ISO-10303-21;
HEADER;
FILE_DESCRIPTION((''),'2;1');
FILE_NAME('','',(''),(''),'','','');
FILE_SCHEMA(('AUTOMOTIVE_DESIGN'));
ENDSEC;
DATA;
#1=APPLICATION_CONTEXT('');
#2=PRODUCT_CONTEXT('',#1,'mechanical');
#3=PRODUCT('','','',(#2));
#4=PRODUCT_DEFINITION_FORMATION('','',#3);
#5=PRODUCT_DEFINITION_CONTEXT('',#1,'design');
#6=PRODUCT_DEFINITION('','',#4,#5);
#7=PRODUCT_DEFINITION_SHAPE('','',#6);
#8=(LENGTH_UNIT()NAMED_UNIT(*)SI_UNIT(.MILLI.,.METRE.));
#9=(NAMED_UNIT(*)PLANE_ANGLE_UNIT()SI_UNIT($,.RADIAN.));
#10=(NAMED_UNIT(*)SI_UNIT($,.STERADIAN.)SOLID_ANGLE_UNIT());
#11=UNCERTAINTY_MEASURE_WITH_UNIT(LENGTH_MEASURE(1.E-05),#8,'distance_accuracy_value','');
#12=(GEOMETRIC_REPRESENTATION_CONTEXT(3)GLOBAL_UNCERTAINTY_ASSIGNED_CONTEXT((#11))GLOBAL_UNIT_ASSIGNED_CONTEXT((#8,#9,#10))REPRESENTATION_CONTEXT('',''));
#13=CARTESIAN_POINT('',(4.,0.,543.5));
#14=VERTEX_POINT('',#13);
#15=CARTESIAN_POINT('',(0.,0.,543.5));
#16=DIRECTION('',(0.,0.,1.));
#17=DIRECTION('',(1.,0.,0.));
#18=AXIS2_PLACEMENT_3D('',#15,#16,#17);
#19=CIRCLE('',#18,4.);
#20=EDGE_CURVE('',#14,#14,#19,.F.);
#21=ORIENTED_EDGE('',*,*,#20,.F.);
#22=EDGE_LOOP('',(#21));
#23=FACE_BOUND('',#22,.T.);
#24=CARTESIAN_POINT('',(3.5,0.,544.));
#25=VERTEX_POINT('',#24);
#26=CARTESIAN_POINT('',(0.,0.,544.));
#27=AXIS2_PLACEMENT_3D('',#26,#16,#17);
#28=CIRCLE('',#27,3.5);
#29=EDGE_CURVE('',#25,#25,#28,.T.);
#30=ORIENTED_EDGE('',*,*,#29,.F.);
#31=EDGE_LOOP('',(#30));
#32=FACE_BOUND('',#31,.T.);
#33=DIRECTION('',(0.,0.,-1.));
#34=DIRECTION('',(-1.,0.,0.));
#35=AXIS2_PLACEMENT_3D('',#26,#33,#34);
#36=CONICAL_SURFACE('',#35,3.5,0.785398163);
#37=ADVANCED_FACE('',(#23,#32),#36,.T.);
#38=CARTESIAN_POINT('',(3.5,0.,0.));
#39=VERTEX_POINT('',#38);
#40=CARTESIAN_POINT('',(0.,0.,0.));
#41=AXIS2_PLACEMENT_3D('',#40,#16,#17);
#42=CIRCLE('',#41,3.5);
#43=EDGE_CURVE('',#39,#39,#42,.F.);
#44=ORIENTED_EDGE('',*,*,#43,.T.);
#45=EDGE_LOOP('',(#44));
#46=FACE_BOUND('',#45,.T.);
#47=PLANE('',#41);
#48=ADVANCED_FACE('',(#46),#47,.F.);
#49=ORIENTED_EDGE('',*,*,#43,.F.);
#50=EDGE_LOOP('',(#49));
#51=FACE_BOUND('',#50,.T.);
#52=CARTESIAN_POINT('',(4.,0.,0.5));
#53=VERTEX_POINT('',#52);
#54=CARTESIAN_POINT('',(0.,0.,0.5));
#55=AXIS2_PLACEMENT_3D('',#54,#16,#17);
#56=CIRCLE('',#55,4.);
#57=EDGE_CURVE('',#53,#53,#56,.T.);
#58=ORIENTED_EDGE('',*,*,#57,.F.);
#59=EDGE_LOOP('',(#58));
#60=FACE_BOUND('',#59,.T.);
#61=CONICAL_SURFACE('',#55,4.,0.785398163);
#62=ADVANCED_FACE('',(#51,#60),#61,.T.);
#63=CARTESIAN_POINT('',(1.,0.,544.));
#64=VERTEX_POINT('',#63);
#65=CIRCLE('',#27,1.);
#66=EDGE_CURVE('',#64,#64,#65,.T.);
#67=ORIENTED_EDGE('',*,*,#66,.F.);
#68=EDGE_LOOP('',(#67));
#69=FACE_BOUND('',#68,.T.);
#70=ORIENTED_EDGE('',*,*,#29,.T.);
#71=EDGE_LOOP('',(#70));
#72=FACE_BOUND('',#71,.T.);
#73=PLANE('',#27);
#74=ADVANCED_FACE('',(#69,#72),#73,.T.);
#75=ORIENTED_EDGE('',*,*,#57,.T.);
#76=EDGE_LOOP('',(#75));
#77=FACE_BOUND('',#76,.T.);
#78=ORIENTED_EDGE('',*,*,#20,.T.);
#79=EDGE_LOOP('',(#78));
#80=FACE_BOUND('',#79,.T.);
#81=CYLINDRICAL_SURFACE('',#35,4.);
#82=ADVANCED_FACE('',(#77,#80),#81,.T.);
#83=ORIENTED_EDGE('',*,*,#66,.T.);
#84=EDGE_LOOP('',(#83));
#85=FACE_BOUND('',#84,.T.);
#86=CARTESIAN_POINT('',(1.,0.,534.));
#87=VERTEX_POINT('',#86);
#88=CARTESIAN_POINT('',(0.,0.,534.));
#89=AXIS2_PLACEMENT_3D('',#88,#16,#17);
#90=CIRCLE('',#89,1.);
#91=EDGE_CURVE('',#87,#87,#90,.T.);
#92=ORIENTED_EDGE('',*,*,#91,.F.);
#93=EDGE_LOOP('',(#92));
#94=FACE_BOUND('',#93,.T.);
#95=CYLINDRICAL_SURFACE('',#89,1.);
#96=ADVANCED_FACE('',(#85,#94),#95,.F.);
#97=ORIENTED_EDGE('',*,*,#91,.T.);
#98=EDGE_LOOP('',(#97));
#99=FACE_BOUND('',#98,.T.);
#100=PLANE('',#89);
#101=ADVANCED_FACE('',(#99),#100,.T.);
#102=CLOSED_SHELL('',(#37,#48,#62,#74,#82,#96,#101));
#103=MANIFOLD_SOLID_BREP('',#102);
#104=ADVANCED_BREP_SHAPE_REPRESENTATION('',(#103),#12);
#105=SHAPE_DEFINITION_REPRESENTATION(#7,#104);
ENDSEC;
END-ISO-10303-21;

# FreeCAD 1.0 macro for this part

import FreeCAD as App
import Part
import Sketcher
from FreeCAD import Vector


def edges_at(feature, points):
    """Names of the edges that pass closest to the given points."""
    edges = feature.Shape.Edges
    near = lambda p: min(range(len(edges)), key=lambda i: edges[i].distToShape(Part.Vertex(*p))[0])
    return sorted({f"Edge{near(p) + 1}" for p in points})

doc = App.newDocument("Part")
params = doc.addObject("Spreadsheet::Sheet", "Params")
for row, (alias, value) in enumerate([
    ("sketch1_diameter", "8 mm"),
    ("pad1_length", "544 mm"),
    ("sketch2_diameter", "2 mm"),
    ("pocket1_length", "10 mm"),
    ("chamfer_size", "0.5 mm"),
], start=1):
    params.set(f"A{row}", alias)
    params.set(f"B{row}", "=" + value)
    params.setAlias(f"B{row}", alias)

body = doc.addObject("PartDesign::Body", "Body")

sketch1 = body.newObject("Sketcher::SketchObject", "Sketch")
sketch1.AttachmentSupport = (doc.getObject("XY_Plane"), [""])
sketch1.MapMode = "FlatFace"
sketch1.addGeometry(Part.Circle(Vector(0, 0, 0), Vector(0, 0, 1), 4), False)
sketch1.addConstraint([
    Sketcher.Constraint("Coincident", 0, 3, -1, 1),
    Sketcher.Constraint("Diameter", 0, 8.0),
])
sketch1.setExpression("Constraints[1]", "Params.sketch1_diameter")
pad1 = body.newObject("PartDesign::Pad", "Pad")
pad1.Profile = sketch1
pad1.setExpression("Length", "Params.pad1_length")

sketch2 = body.newObject("Sketcher::SketchObject", "Sketch001")
sketch2.AttachmentSupport = (doc.getObject("XY_Plane"), [""])
sketch2.MapMode = "FlatFace"
sketch2.AttachmentOffset = App.Placement(Vector(0, 0, 544), App.Rotation())
sketch2.addGeometry(Part.Circle(Vector(0, 0, 0), Vector(0, 0, 1), 1), False)
sketch2.addConstraint([
    Sketcher.Constraint("Coincident", 0, 3, -1, 1),
    Sketcher.Constraint("Diameter", 0, 2.0),
])
sketch2.setExpression("Constraints[1]", "Params.sketch2_diameter")
pocket1 = body.newObject("PartDesign::Pocket", "Pocket")
pocket1.Profile = sketch2
pocket1.setExpression("Length", "Params.pocket1_length")
doc.recompute()

chamfer = body.newObject("PartDesign::Chamfer", "Chamfer")
chamfer.Base = (pocket1, edges_at(pocket1, [(-4, 0, 0), (-4, 0, 544)]))
chamfer.setExpression("Size", "Params.chamfer_size")

doc.recompute()
